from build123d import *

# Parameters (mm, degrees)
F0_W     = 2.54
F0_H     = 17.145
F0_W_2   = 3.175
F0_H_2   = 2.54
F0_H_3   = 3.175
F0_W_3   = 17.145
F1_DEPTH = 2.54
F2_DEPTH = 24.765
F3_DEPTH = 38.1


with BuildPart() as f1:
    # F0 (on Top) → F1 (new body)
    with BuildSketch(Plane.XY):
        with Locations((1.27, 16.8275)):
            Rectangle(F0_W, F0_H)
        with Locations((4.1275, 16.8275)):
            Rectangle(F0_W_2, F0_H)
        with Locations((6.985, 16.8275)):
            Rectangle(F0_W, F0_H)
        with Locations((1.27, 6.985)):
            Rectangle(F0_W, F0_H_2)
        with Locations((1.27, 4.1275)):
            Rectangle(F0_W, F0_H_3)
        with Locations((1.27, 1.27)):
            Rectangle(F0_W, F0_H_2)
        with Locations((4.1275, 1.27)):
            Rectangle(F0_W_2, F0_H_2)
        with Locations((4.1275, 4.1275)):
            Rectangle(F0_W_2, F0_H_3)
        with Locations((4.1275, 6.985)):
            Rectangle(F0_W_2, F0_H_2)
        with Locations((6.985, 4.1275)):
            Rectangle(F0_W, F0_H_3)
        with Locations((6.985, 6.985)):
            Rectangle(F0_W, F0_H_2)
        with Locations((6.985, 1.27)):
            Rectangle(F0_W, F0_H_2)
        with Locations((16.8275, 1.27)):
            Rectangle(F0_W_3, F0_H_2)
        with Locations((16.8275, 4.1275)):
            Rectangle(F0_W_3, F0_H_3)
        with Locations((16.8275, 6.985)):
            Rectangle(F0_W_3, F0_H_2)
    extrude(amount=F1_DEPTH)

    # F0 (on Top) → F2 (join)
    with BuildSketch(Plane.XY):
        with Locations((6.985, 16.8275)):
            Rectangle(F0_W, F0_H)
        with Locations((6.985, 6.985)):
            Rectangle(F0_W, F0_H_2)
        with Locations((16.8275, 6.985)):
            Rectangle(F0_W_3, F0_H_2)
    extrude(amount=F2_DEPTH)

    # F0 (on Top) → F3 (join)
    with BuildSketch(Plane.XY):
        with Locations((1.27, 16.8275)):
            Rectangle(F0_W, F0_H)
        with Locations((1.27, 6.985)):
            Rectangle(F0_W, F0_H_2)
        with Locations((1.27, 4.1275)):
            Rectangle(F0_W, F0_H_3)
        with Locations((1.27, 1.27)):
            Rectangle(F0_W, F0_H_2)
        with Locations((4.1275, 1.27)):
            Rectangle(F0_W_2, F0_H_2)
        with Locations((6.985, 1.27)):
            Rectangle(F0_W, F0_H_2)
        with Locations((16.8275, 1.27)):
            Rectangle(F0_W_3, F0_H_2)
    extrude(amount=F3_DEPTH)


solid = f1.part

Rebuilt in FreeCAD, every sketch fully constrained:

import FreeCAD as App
import Part
import Sketcher
from FreeCAD import Vector
Q = App.Units.Quantity

doc = App.newDocument("Part")
body = doc.addObject("PartDesign::Body", "Body")

sketch1 = body.newObject("Sketcher::SketchObject", "Sketch")
sketch1.AttachmentSupport = (doc.getObject("XY_Plane"), [""])
sketch1.MapMode = "FlatFace"
sketch1.addGeometry([
    Part.LineSegment(Vector(8, 25, 0), Vector(0, 25, 0)),
    Part.LineSegment(Vector(0, 25, 0), Vector(0, 0, 0)),
    Part.LineSegment(Vector(0, 0, 0), Vector(25, 0, 0)),
    Part.LineSegment(Vector(25, 0, 0), Vector(25, 8, 0)),
    Part.LineSegment(Vector(25, 8, 0), Vector(8, 8, 0)),
    Part.LineSegment(Vector(8, 8, 0), Vector(8, 25, 0)),
], False)
sketch1.addConstraint([
    Sketcher.Constraint("Coincident", 0, 2, 1, 1),
    Sketcher.Constraint("Coincident", 1, 2, 2, 1),
    Sketcher.Constraint("Coincident", 2, 2, 3, 1),
    Sketcher.Constraint("Coincident", 3, 2, 4, 1),
    Sketcher.Constraint("Coincident", 4, 2, 5, 1),
    Sketcher.Constraint("Coincident", 5, 2, 0, 1),
    Sketcher.Constraint("Horizontal", 0),
    Sketcher.Constraint("Vertical", 1),
    Sketcher.Constraint("Horizontal", 2),
    Sketcher.Constraint("Vertical", 3),
    Sketcher.Constraint("Horizontal", 4),
    Sketcher.Constraint("Vertical", 5),
    Sketcher.Constraint("Coincident", 1, 2, -1, 1),
    Sketcher.Constraint("Equal", 2, 1),
    Sketcher.Constraint("Equal", 0, 3),
    Sketcher.Constraint("DistanceX", 2, 1, 2, 2, Q("1 in")),
    Sketcher.Constraint("DistanceX", 0, 2, 0, 1, Q("0.325 in")),
])
pad1 = body.newObject("PartDesign::Pad", "Pad")
pad1.Profile = sketch1
pad1.Length = Q("0.1 in")

sketch2 = body.newObject("Sketcher::SketchObject", "Sketch001")
sketch2.AttachmentSupport = (doc.getObject("XY_Plane"), [""])
sketch2.MapMode = "FlatFace"
sketch2.addGeometry([
    Part.LineSegment(Vector(5.7, 25.4, 0), Vector(5.7, 5.7, 0)),
    Part.LineSegment(Vector(5.7, 5.7, 0), Vector(25.4, 5.7, 0)),
    Part.LineSegment(Vector(25.4, 5.7, 0), Vector(25.4, 8.3, 0)),
    Part.LineSegment(Vector(25.4, 8.3, 0), Vector(8.3, 8.3, 0)),
    Part.LineSegment(Vector(8.3, 8.3, 0), Vector(8.3, 25.4, 0)),
    Part.LineSegment(Vector(8.3, 25.4, 0), Vector(5.7, 25.4, 0)),
], False)
sketch2.addConstraint([
    Sketcher.Constraint("Coincident", 0, 2, 1, 1),
    Sketcher.Constraint("Coincident", 1, 2, 2, 1),
    Sketcher.Constraint("Coincident", 2, 2, 3, 1),
    Sketcher.Constraint("Coincident", 3, 2, 4, 1),
    Sketcher.Constraint("Coincident", 4, 2, 5, 1),
    Sketcher.Constraint("Coincident", 5, 2, 0, 1),
    Sketcher.Constraint("Vertical", 0),
    Sketcher.Constraint("Horizontal", 1),
    Sketcher.Constraint("Vertical", 2),
    Sketcher.Constraint("Horizontal", 3),
    Sketcher.Constraint("Vertical", 4),
    Sketcher.Constraint("Horizontal", 5),
    Sketcher.Constraint("Equal", 1, 0),
    Sketcher.Constraint("Equal", 5, 2),
    Sketcher.Constraint("DistanceX", 5, 2, 5, 1, Q("0.1 in")),
    Sketcher.Constraint("DistanceX", -1, 1, 1, 2, Q("1 in")),
    Sketcher.Constraint("DistanceY", -1, 1, 4, 2, Q("1 in")),
    Sketcher.Constraint("DistanceX", 1, 1, 1, 2, Q("0.775 in")),
])
pad2 = body.newObject("PartDesign::Pad", "Pad001")
pad2.Profile = sketch2
pad2.Length = Q("0.975 in")

sketch3 = body.newObject("Sketcher::SketchObject", "Sketch002")
sketch3.AttachmentSupport = (doc.getObject("XY_Plane"), [""])
sketch3.MapMode = "FlatFace"
sketch3.addGeometry([
    Part.LineSegment(Vector(0, 25.4, 0), Vector(0, 0, 0)),
    Part.LineSegment(Vector(0, 0, 0), Vector(25.4, 0, 0)),
    Part.LineSegment(Vector(25.4, 0, 0), Vector(25.4, 2.5, 0)),
    Part.LineSegment(Vector(25.4, 2.5, 0), Vector(2.5, 2.5, 0)),
    Part.LineSegment(Vector(2.5, 2.5, 0), Vector(2.5, 25.4, 0)),
    Part.LineSegment(Vector(2.5, 25.4, 0), Vector(0, 25.4, 0)),
], False)
sketch3.addConstraint([
    Sketcher.Constraint("Coincident", 0, 2, 1, 1),
    Sketcher.Constraint("Coincident", 1, 2, 2, 1),
    Sketcher.Constraint("Coincident", 2, 2, 3, 1),
    Sketcher.Constraint("Coincident", 3, 2, 4, 1),
    Sketcher.Constraint("Coincident", 4, 2, 5, 1),
    Sketcher.Constraint("Coincident", 5, 2, 0, 1),
    Sketcher.Constraint("Vertical", 0),
    Sketcher.Constraint("Horizontal", 1),
    Sketcher.Constraint("Vertical", 2),
    Sketcher.Constraint("Horizontal", 3),
    Sketcher.Constraint("Vertical", 4),
    Sketcher.Constraint("Horizontal", 5),
    Sketcher.Constraint("Coincident", 0, 2, -1, 1),
    Sketcher.Constraint("Equal", 1, 0),
    Sketcher.Constraint("Equal", 5, 2),
    Sketcher.Constraint("DistanceX", 1, 1, 1, 2, Q("1 in")),
    Sketcher.Constraint("DistanceX", 3, 2, 3, 1, Q("0.9 in")),
])
pad3 = body.newObject("PartDesign::Pad", "Pad002")
pad3.Profile = sketch3
pad3.Length = Q("1.5 in")

doc.recompute()
